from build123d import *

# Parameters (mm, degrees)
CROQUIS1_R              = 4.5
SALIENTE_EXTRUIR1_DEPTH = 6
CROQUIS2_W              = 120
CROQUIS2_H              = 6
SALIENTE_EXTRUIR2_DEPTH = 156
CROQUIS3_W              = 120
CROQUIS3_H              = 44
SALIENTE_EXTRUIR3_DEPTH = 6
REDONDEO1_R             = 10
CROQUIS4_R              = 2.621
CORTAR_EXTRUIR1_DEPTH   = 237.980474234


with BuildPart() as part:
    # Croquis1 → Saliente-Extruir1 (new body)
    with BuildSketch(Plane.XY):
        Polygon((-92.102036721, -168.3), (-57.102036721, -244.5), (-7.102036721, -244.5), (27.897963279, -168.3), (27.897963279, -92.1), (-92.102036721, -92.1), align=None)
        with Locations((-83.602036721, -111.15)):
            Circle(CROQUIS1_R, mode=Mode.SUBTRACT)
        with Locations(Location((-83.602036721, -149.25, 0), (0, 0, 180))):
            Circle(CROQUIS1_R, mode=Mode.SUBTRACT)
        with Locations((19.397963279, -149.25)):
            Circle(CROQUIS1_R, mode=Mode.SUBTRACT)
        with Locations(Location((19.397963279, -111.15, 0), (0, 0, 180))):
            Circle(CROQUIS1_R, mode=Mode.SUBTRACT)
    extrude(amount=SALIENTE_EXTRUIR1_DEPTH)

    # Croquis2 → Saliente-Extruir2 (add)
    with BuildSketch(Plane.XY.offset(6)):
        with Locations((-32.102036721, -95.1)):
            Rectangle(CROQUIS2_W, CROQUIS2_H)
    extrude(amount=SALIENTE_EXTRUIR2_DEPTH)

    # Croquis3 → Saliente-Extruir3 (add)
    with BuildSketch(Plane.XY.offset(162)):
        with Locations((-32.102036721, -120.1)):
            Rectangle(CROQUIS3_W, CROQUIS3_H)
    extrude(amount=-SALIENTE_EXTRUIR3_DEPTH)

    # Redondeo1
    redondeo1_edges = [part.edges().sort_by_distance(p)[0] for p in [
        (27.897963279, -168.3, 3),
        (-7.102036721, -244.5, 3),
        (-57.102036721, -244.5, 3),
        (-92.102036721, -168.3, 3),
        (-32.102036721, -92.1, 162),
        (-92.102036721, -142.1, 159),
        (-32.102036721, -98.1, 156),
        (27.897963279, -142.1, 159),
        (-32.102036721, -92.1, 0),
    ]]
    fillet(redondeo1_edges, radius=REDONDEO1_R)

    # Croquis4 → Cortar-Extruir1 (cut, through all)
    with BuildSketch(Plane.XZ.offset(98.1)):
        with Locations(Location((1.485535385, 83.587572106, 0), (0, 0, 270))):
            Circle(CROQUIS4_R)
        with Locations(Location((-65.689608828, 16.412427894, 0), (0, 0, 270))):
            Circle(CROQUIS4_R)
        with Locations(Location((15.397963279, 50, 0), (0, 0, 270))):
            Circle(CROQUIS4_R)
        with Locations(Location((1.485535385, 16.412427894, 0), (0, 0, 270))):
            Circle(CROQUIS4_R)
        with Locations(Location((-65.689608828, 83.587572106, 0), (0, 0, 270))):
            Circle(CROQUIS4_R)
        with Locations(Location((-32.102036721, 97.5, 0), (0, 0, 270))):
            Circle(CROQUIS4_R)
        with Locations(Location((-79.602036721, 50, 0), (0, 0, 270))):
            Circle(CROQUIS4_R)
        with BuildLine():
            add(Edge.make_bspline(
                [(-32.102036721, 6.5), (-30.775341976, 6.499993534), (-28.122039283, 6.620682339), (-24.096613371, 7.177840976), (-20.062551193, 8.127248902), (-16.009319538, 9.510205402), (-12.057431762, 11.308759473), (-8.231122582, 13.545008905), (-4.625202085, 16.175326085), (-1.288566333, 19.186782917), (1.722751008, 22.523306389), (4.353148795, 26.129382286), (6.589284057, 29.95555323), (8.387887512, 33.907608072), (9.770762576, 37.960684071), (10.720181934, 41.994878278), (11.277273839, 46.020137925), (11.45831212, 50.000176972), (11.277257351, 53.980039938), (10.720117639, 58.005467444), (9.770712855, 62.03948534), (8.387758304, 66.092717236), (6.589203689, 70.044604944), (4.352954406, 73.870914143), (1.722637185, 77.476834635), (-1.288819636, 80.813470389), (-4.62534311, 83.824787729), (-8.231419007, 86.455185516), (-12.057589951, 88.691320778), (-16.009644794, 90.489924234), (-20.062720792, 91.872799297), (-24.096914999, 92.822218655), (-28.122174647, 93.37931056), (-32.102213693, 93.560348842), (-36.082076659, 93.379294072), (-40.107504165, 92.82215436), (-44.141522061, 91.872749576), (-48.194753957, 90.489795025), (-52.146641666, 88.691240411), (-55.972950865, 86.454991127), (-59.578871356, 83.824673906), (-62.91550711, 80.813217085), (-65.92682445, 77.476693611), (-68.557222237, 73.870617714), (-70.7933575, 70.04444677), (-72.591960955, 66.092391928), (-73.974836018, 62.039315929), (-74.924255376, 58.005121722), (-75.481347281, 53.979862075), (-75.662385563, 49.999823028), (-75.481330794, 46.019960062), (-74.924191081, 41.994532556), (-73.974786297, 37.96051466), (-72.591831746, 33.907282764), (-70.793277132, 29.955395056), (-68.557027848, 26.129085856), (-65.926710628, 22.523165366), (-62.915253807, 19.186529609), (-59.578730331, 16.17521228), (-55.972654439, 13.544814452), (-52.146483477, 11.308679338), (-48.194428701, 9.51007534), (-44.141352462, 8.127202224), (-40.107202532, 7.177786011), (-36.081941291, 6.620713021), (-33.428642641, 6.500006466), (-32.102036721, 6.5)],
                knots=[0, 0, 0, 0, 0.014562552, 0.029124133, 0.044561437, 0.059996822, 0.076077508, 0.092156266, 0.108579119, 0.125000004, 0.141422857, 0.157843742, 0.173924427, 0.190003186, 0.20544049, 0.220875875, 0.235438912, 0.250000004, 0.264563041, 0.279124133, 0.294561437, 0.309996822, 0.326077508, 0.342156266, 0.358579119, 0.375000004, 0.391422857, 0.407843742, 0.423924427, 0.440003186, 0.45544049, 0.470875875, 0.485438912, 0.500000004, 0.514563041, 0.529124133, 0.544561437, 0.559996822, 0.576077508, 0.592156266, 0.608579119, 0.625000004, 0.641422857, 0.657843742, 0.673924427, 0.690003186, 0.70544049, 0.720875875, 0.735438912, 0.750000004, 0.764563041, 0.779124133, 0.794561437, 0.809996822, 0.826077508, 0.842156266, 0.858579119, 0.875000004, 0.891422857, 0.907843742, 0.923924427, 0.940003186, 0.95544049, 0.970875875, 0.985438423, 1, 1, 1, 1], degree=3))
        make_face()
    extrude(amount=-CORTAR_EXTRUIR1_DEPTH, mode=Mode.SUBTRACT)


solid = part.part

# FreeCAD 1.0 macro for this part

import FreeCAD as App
import Part
import Sketcher

V = App.Vector


def edges_at(feature, points):
    """Names of the edges that pass closest to the given points."""
    edges = feature.Shape.Edges
    near = lambda p: min(range(len(edges)), key=lambda i: edges[i].distToShape(Part.Vertex(*p))[0])
    return sorted({f"Edge{near(p) + 1}" for p in points})


def add_polygon(sketch, points):
    """Adds a closed chain of lines whose ends are joined by coincident constraints."""
    first, n = sketch.GeometryCount, len(points)
    for a, b in zip(points, points[1:] + points[:1]):
        sketch.addGeometry(Part.LineSegment(App.Vector(*a, 0), App.Vector(*b, 0)), False)
    for i in range(n):
        sketch.addConstraint(Sketcher.Constraint("Coincident", first + i, 2, first + (i + 1) % n, 1))

doc = App.newDocument("Part")
body = doc.addObject("PartDesign::Body", "Body")

sketch1 = body.newObject("Sketcher::SketchObject", "Sketch")
sketch1.AttachmentSupport = (doc.getObject("XY_Plane"), [""])
sketch1.MapMode = "FlatFace"
add_polygon(sketch1, [(-92.102037, -168.3), (-57.102037, -244.5), (-7.102037, -244.5), (27.897963, -168.3), (27.897963, -92.1), (-92.102037, -92.1)])
sketch1.addGeometry(Part.Circle(V(-83.602037, -149.25, 0), V(0, 0, 1), 4.5), False)
sketch1.addGeometry(Part.Circle(V(19.397963, -149.25, 0), V(0, 0, 1), 4.5), False)
sketch1.addGeometry(Part.Circle(V(-83.602037, -111.15, 0), V(0, 0, 1), 4.5), False)
sketch1.addGeometry(Part.Circle(V(19.397963, -111.15, 0), V(0, 0, 1), 4.5), False)
sketch1.addConstraint([
    Sketcher.Constraint("Horizontal", 1),
    Sketcher.Constraint("Vertical", 3),
    Sketcher.Constraint("Horizontal", 4),
    Sketcher.Constraint("Vertical", 5),
    Sketcher.Constraint("Equal", 6, 7),
    Sketcher.Constraint("Equal", 7, 8),
    Sketcher.Constraint("Equal", 8, 9),
    Sketcher.Constraint("Horizontal", 6, 3, 7, 3),
    Sketcher.Constraint("Horizontal", 8, 3, 9, 3),
    Sketcher.Constraint("Horizontal", 2, 2, 5, 2),
    Sketcher.Constraint("Vertical", 6, 3, 8, 3),
    Sketcher.Constraint("Vertical", 7, 3, 9, 3),
    Sketcher.Constraint("Equal", 0, 2),
    Sketcher.Constraint("Diameter", 6, 9.0),
    Sketcher.Constraint("DistanceX", 1, 1, 1, 2, 50.0),
    Sketcher.Constraint("DistanceX", 4, 2, 4, 1, 120.0),
    Sketcher.Constraint("DistanceY", 3, 1, 3, 2, 76.2),
    Sketcher.Constraint("DistanceX", 6, 3, 7, 3, 103.0),
    Sketcher.Constraint("DistanceY", 0, 2, -1, 1, 244.5),
    Sketcher.Constraint("DistanceY", 2, 2, -1, 1, 168.3),
    Sketcher.Constraint("DistanceY", 6, 3, 8, 3, 38.1),
    Sketcher.Constraint("DistanceX", 6, 3, 0, 2, 26.5),
    Sketcher.Constraint("DistanceY", 6, 3, -1, 1, 149.25),
    Sketcher.Constraint("DistanceX", 6, 3, -1, 1, 83.602037),
])
pad1 = body.newObject("PartDesign::Pad", "Pad")
pad1.Profile = sketch1
pad1.Length = 6

sketch2 = body.newObject("Sketcher::SketchObject", "Sketch001")
sketch2.AttachmentSupport = (doc.getObject("XY_Plane"), [""])
sketch2.MapMode = "FlatFace"
sketch2.AttachmentOffset = App.Placement(V(0, 0, 6), App.Rotation())
add_polygon(sketch2, [(-92.102037, -92.1), (-92.102037, -98.1), (27.897963, -98.1), (27.897963, -92.1)])
sketch2.addConstraint([
    Sketcher.Constraint("Vertical", 0),
    Sketcher.Constraint("Horizontal", 1),
    Sketcher.Constraint("Vertical", 2),
    Sketcher.Constraint("Horizontal", 3),
    Sketcher.Constraint("DistanceX", 1, 1, 1, 2, 120.0),
    Sketcher.Constraint("DistanceY", 0, 2, 0, 1, 6.0),
    Sketcher.Constraint("DistanceY", 0, 2, -1, 1, 98.1),
    Sketcher.Constraint("DistanceX", 0, 2, -1, 1, 92.102037),
])
pad2 = body.newObject("PartDesign::Pad", "Pad001")
pad2.Profile = sketch2
pad2.Length = 156

sketch3 = body.newObject("Sketcher::SketchObject", "Sketch002")
sketch3.AttachmentSupport = (doc.getObject("XY_Plane"), [""])
sketch3.MapMode = "FlatFace"
sketch3.AttachmentOffset = App.Placement(V(0, 0, 162), App.Rotation())
add_polygon(sketch3, [(-92.102037, -98.1), (-92.102037, -142.1), (27.897963, -142.1), (27.897963, -98.1)])
sketch3.addConstraint([
    Sketcher.Constraint("Vertical", 0),
    Sketcher.Constraint("Horizontal", 1),
    Sketcher.Constraint("Vertical", 2),
    Sketcher.Constraint("Horizontal", 3),
    Sketcher.Constraint("DistanceX", 1, 1, 1, 2, 120.0),
    Sketcher.Constraint("DistanceY", 0, 2, 0, 1, 44.0),
    Sketcher.Constraint("DistanceY", 0, 2, -1, 1, 142.1),
    Sketcher.Constraint("DistanceX", 0, 2, -1, 1, 92.102037),
])
pad3 = body.newObject("PartDesign::Pad", "Pad002")
pad3.Profile = sketch3
pad3.Length = 6
pad3.Reversed = True
doc.recompute()

fillet = body.newObject("PartDesign::Fillet", "Fillet")
fillet.Base = (pad3, edges_at(pad3, [
    (27.898, -168.3, 3),
    (-7.102, -244.5, 3),
    (-57.102, -244.5, 3),
    (-92.102, -168.3, 3),
    (-32.102, -92.1, 162),
    (-92.102, -142.1, 159),
    (-32.102, -98.1, 156),
    (27.898, -142.1, 159),
    (-32.102, -92.1, 0),
]))
fillet.Radius = 10

sketch4 = body.newObject("Sketcher::SketchObject", "Sketch003")
sketch4.AttachmentSupport = (doc.getObject("XZ_Plane"), [""])
sketch4.MapMode = "FlatFace"
sketch4.AttachmentOffset = App.Placement(V(0, 0, 98.1), App.Rotation())
sketch4.addGeometry([
    Part.Circle(V(1.485535, 83.587572, 0), V(0, 0, 1), 2.621),
    Part.Circle(V(-65.689609, 16.412428, 0), V(0, 0, 1), 2.621),
    Part.Circle(V(15.397963, 50, 0), V(0, 0, 1), 2.621),
    Part.Circle(V(1.485535, 16.412428, 0), V(0, 0, 1), 2.621),
    Part.Circle(V(-65.689609, 83.587572, 0), V(0, 0, 1), 2.621),
    Part.Circle(V(-32.102037, 97.5, 0), V(0, 0, 1), 2.621),
    Part.Circle(V(-79.602037, 50, 0), V(0, 0, 1), 2.621),
    Part.BSplineCurve([V(-32.102037, 6.5, 0), V(-30.775342, 6.499994, 0), V(-28.122039, 6.620682, 0), V(-24.096613, 7.177841, 0), V(-20.062551, 8.127249, 0), V(-16.00932, 9.510205, 0), V(-12.057432, 11.308759, 0), V(-8.231123, 13.545009, 0), V(-4.625202, 16.175326, 0), V(-1.288566, 19.186783, 0), V(1.722751, 22.523306, 0), V(4.353149, 26.129382, 0), V(6.589284, 29.955553, 0), V(8.387888, 33.907608, 0), V(9.770763, 37.960684, 0), V(10.720182, 41.994878, 0), V(11.277274, 46.020138, 0), V(11.458312, 50.000177, 0), V(11.277257, 53.98004, 0), V(10.720118, 58.005467, 0), V(9.770713, 62.039485, 0), V(8.387758, 66.092717, 0), V(6.589204, 70.044605, 0), V(4.352954, 73.870914, 0), V(1.722637, 77.476835, 0), V(-1.28882, 80.81347, 0), V(-4.625343, 83.824788, 0), V(-8.231419, 86.455186, 0), V(-12.05759, 88.691321, 0), V(-16.009645, 90.489924, 0), V(-20.062721, 91.872799, 0), V(-24.096915, 92.822219, 0), V(-28.122175, 93.379311, 0), V(-32.102214, 93.560349, 0), V(-36.082077, 93.379294, 0), V(-40.107504, 92.822154, 0), V(-44.141522, 91.87275, 0), V(-48.194754, 90.489795, 0), V(-52.146642, 88.69124, 0), V(-55.972951, 86.454991, 0), V(-59.578871, 83.824674, 0), V(-62.915507, 80.813217, 0), V(-65.926824, 77.476694, 0), V(-68.557222, 73.870618, 0), V(-70.793357, 70.044447, 0), V(-72.591961, 66.092392, 0), V(-73.974836, 62.039316, 0), V(-74.924255, 58.005122, 0), V(-75.481347, 53.979862, 0), V(-75.662386, 49.999823, 0), V(-75.481331, 46.01996, 0), V(-74.924191, 41.994533, 0), V(-73.974786, 37.960515, 0), V(-72.591832, 33.907283, 0), V(-70.793277, 29.955395, 0), V(-68.557028, 26.129086, 0), V(-65.926711, 22.523165, 0), V(-62.915254, 19.18653, 0), V(-59.57873, 16.175212, 0), V(-55.972654, 13.544814, 0), V(-52.146483, 11.308679, 0), V(-48.194429, 9.510075, 0), V(-44.141352, 8.127202, 0), V(-40.107203, 7.177786, 0), V(-36.081941, 6.620713, 0), V(-33.428643, 6.500006, 0), V(-32.102037, 6.5, 0)], [4, 1, 1, 1, 1, 1, 1, 1, 1, 1, 1, 1, 1, 1, 1, 1, 1, 1, 1, 1, 1, 1, 1, 1, 1, 1, 1, 1, 1, 1, 1, 1, 1, 1, 1, 1, 1, 1, 1, 1, 1, 1, 1, 1, 1, 1, 1, 1, 1, 1, 1, 1, 1, 1, 1, 1, 1, 1, 1, 1, 1, 1, 1, 1, 4], [0, 0.014562552, 0.029124133, 0.044561437, 0.059996822, 0.076077508, 0.092156266, 0.108579119, 0.125000004, 0.141422857, 0.157843742, 0.173924427, 0.190003186, 0.20544049, 0.220875875, 0.235438912, 0.250000004, 0.264563041, 0.279124133, 0.294561437, 0.309996822, 0.326077508, 0.342156266, 0.358579119, 0.375000004, 0.391422857, 0.407843742, 0.423924427, 0.440003186, 0.45544049, 0.470875875, 0.485438912, 0.500000004, 0.514563041, 0.529124133, 0.544561437, 0.559996822, 0.576077508, 0.592156266, 0.608579119, 0.625000004, 0.641422857, 0.657843742, 0.673924427, 0.690003186, 0.70544049, 0.720875875, 0.735438912, 0.750000004, 0.764563041, 0.779124133, 0.794561437, 0.809996822, 0.826077508, 0.842156266, 0.858579119, 0.875000004, 0.891422857, 0.907843742, 0.923924427, 0.940003186, 0.95544049, 0.970875875, 0.985438423, 1], False, 3, [1, 1, 1, 1, 1, 1, 1, 1, 1, 1, 1, 1, 1, 1, 1, 1, 1, 1, 1, 1, 1, 1, 1, 1, 1, 1, 1, 1, 1, 1, 1, 1, 1, 1, 1, 1, 1, 1, 1, 1, 1, 1, 1, 1, 1, 1, 1, 1, 1, 1, 1, 1, 1, 1, 1, 1, 1, 1, 1, 1, 1, 1, 1, 1, 1, 1, 1], False),
], False)
sketch4.addConstraint([
    Sketcher.Constraint("Block", 7),
    Sketcher.Constraint("Equal", 0, 1),
    Sketcher.Constraint("Equal", 1, 2),
    Sketcher.Constraint("Equal", 2, 3),
    Sketcher.Constraint("Equal", 3, 4),
    Sketcher.Constraint("Equal", 4, 5),
    Sketcher.Constraint("Equal", 5, 6),
    Sketcher.Constraint("Horizontal", 1, 3, 3, 3),
    Sketcher.Constraint("Horizontal", 0, 3, 4, 3),
    Sketcher.Constraint("Horizontal", 2, 3, 6, 3),
    Sketcher.Constraint("Vertical", 0, 3, 3, 3),
    Sketcher.Constraint("Vertical", 1, 3, 4, 3),
    Sketcher.Constraint("Diameter", 0, 5.242),
    Sketcher.Constraint("DistanceY", -1, 1, 2, 3, 50.0),
    Sketcher.Constraint("DistanceY", -1, 1, 5, 3, 97.5),
    Sketcher.Constraint("DistanceX", 5, 3, 2, 3, 47.5),
    Sketcher.Constraint("DistanceX", 6, 3, 5, 3, 47.5),
    Sketcher.Constraint("DistanceX", 1, 3, -1, 1, 65.689609),
    Sketcher.Constraint("DistanceX", -1, 1, 0, 3, 1.485535),
    Sketcher.Constraint("DistanceY", -1, 1, 0, 3, 83.587572),
    Sketcher.Constraint("DistanceY", -1, 1, 1, 3, 16.412428),
    Sketcher.Constraint("DistanceX", -1, 1, 2, 3, 15.397963),
])
pocket1 = body.newObject("PartDesign::Pocket", "Pocket")
pocket1.Profile = sketch4
pocket1.Type = "ThroughAll"

doc.recompute()
